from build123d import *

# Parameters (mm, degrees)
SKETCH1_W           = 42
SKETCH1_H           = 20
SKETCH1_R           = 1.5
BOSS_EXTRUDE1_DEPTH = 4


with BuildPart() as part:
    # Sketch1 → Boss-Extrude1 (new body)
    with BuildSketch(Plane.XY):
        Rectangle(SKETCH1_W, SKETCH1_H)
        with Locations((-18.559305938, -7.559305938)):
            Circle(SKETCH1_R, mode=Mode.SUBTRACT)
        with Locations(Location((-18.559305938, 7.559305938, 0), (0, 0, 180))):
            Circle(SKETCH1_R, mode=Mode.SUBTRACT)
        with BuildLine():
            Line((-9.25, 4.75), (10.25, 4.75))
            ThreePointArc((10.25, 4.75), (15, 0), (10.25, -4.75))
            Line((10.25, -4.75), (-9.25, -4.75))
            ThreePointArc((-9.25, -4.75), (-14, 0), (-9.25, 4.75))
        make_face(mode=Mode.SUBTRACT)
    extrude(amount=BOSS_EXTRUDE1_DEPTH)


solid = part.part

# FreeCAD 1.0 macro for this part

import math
import FreeCAD as App
import Part
import Sketcher

doc = App.newDocument("Part")
body = doc.addObject("PartDesign::Body", "Body")

sketch1 = body.newObject("Sketcher::SketchObject", "Sketch")
sketch1.AttachmentSupport = (doc.getObject("XY_Plane"), [""])
sketch1.MapMode = "FlatFace"
sketch1.addGeometry([
    Part.LineSegment(App.Vector(-21, 10, 0), App.Vector(-21, -10, 0)),
    Part.LineSegment(App.Vector(-21, -10, 0), App.Vector(21, -10, 0)),
    Part.LineSegment(App.Vector(21, -10, 0), App.Vector(21, 10, 0)),
    Part.LineSegment(App.Vector(21, 10, 0), App.Vector(-21, 10, 0)),
    Part.Circle(App.Vector(-18.6, -7.6, 0), App.Vector(0, 0, 1), 1.5),
    Part.Circle(App.Vector(-18.6, 7.6, 0), App.Vector(0, 0, 1), 1.5),
    Part.ArcOfCircle(Part.Circle(App.Vector(-9.2, 0, 0), App.Vector(0, 0, 1), 4.8), math.radians(90), math.radians(270)),
    Part.LineSegment(App.Vector(-9.2, 4.8, 0), App.Vector(10.2, 4.8, 0)),
    Part.ArcOfCircle(Part.Circle(App.Vector(10.2, 0, 0), App.Vector(0, 0, 1), 4.8), math.radians(-90), math.radians(90)),
    Part.LineSegment(App.Vector(10.2, -4.8, 0), App.Vector(-9.2, -4.8, 0)),
], False)
sketch1.addConstraint([
    Sketcher.Constraint("Coincident", 0, 2, 1, 1),
    Sketcher.Constraint("Coincident", 1, 2, 2, 1),
    Sketcher.Constraint("Coincident", 2, 2, 3, 1),
    Sketcher.Constraint("Coincident", 3, 2, 0, 1),
    Sketcher.Constraint("Tangent", 6, 1, 7, 1),
    Sketcher.Constraint("Tangent", 7, 2, 8, 2),
    Sketcher.Constraint("Tangent", 8, 1, 9, 1),
    Sketcher.Constraint("Tangent", 9, 2, 6, 2),
    Sketcher.Constraint("Vertical", 0),
    Sketcher.Constraint("Horizontal", 1),
    Sketcher.Constraint("Vertical", 2),
    Sketcher.Constraint("Horizontal", 3),
    Sketcher.Constraint("Horizontal", 7),
    Sketcher.Constraint("Horizontal", 9),
    Sketcher.Constraint("Equal", 4, 5),
    Sketcher.Constraint("Symmetric", 0, 2, 2, 2, -1, 1),
    Sketcher.Constraint("Symmetric", 4, 3, 5, 3, -1),
    Sketcher.Constraint("PointOnObject", 6, 3, -1),
    Sketcher.Constraint("Diameter", 4, 3.0),
    Sketcher.Constraint("DistanceX", 1, 1, 1, 2, 42.0),
    Sketcher.Constraint("DistanceY", 0, 2, 0, 1, 20.0),
    Sketcher.Constraint("Radius", 6, 4.75),
    Sketcher.Constraint("DistanceX", 7, 1, 7, 2, 19.5),
    Sketcher.Constraint("DistanceX", 6, 3, -1, 1, 9.25),
    Sketcher.Constraint("DistanceY", 4, 3, 5, 3, 15.118612),
    Sketcher.Constraint("DistanceX", 4, 3, -1, 1, 18.559306),
])
pad1 = body.newObject("PartDesign::Pad", "Pad")
pad1.Profile = sketch1
pad1.Length = 4

doc.recompute()
